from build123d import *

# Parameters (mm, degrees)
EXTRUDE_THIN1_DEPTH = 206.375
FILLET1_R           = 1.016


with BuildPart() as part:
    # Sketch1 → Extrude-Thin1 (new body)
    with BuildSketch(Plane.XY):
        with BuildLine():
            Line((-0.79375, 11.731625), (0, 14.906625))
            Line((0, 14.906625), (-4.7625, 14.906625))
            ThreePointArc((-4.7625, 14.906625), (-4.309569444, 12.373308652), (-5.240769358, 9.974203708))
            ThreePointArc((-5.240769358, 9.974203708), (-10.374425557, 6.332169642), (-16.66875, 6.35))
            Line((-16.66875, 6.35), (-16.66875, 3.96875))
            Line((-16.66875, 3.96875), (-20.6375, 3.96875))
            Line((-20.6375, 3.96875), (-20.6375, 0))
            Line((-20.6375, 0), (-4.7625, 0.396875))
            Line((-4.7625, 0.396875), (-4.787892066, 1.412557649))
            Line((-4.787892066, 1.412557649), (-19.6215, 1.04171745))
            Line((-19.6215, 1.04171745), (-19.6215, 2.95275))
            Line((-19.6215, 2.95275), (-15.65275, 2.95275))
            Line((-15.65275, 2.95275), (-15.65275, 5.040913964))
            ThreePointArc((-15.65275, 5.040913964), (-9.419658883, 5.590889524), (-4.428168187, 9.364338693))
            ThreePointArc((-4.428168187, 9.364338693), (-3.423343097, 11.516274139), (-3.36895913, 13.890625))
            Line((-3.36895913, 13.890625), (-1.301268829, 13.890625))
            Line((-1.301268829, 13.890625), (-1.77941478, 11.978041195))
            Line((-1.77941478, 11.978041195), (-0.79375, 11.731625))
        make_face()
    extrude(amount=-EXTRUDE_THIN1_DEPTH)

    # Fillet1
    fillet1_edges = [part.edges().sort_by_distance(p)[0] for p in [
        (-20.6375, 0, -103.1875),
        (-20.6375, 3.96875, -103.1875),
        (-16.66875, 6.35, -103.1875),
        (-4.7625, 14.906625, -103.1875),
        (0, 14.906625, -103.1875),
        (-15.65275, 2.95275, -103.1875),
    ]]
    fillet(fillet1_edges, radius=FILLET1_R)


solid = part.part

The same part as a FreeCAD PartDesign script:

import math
import FreeCAD as App
import Part
import Sketcher

V = App.Vector
Q = App.Units.Quantity


def edges_at(feature, points):
    """Names of the edges that pass closest to the given points."""
    edges = feature.Shape.Edges
    near = lambda p: min(range(len(edges)), key=lambda i: edges[i].distToShape(Part.Vertex(*p))[0])
    return sorted({f"Edge{near(p) + 1}" for p in points})

doc = App.newDocument("Part")
params = doc.addObject("Spreadsheet::Sheet", "Params")
for row, (alias, value) in enumerate([
    ("sketch1_radius", "0.1875 in"),
    ("sketch1_radius2", "0.40625 in"),
    ("sketch1_length", "0.04 in"),
    ("sketch1_width", "0.1875 in"),
    ("sketch1_width2", "0.15625 in"),
    ("pad1_length", "8.125 in"),
    ("fillet_radius", "0.04 in"),
], start=1):
    params.set(f"A{row}", alias)
    params.set(f"B{row}", "=" + value)
    params.setAlias(f"B{row}", alias)

body = doc.addObject("PartDesign::Body", "Body")

# Sketch on XY plane
sketch1 = body.newObject("Sketcher::SketchObject", "Sketch")
sketch1.AttachmentSupport = (doc.getObject("XY_Plane"), [""])
sketch1.MapMode = "FlatFace"
sketch1.addGeometry(Part.LineSegment(V(-0.79375, 11.731625, 0), V(0, 14.906625, 0)), False)
sketch1.addGeometry(Part.LineSegment(V(0, 14.906625, 0), V(-4.7625, 14.906625, 0)), False)
sketch1.addGeometry(Part.ArcOfCircle(Part.Circle(V(-9.049837, 12.832946, 0), V(0, 0, 1), 4.7625), math.radians(-36.888581), math.radians(25.811906)), False)
sketch1.addGeometry(Part.ArcOfCircle(Part.Circle(V(-13.49375, 16.168145, 0), V(0, 0, 1), 10.31875), math.radians(-107.920213), math.radians(-36.888581)), False)
sketch1.addGeometry(Part.LineSegment(V(-16.66875, 6.35, 0), V(-16.66875, 3.96875, 0)), False)
sketch1.addGeometry(Part.LineSegment(V(-16.66875, 3.96875, 0), V(-20.6375, 3.96875, 0)), False)
sketch1.addGeometry(Part.LineSegment(V(-20.6375, 3.96875, 0), V(-20.6375, 0, 0)), False)
sketch1.addGeometry(Part.LineSegment(V(-20.6375, 0, 0), V(-4.7625, 0.396875, 0)), False)
sketch1.addGeometry(Part.LineSegment(V(-4.7625, 0.396875, 0), V(-4.787892, 1.412558, 0)), False)
sketch1.addGeometry(Part.LineSegment(V(-4.787892, 1.412558, 0), V(-19.6215, 1.041717, 0)), False)
sketch1.addGeometry(Part.LineSegment(V(-19.6215, 1.041717, 0), V(-19.6215, 2.95275, 0)), False)
sketch1.addGeometry(Part.LineSegment(V(-19.6215, 2.95275, 0), V(-15.65275, 2.95275, 0)), False)
sketch1.addGeometry(Part.LineSegment(V(-15.65275, 2.95275, 0), V(-15.65275, 5.040914, 0)), False)
sketch1.addGeometry(Part.ArcOfCircle(Part.Circle(V(-13.49375, 16.168145, 0), V(0, 0, 1), 11.33475), math.radians(-100.980575), math.radians(-36.888581)), False)
sketch1.addGeometry(Part.ArcOfCircle(Part.Circle(V(-9.049837, 12.832946, 0), V(0, 0, 1), 5.7785), math.radians(-36.888581), math.radians(10.546704)), False)
sketch1.addGeometry(Part.LineSegment(V(-3.368959, 13.890625, 0), V(-1.301269, 13.890625, 0)), False)
sketch1.addGeometry(Part.LineSegment(V(-1.301269, 13.890625, 0), V(-1.779415, 11.978041, 0)), False)
sketch1.addGeometry(Part.LineSegment(V(-1.779415, 11.978041, 0), V(-0.79375, 11.731625, 0)), False)
sketch1.addConstraint(Sketcher.Constraint("Coincident", 0, 2, 1, 1))
sketch1.addConstraint(Sketcher.Constraint("Coincident", 1, 2, 2, 2))
sketch1.addConstraint(Sketcher.Constraint("Tangent", 2, 1, 3, 2))
sketch1.addConstraint(Sketcher.Constraint("Coincident", 3, 1, 4, 1))
sketch1.addConstraint(Sketcher.Constraint("Coincident", 4, 2, 5, 1))
sketch1.addConstraint(Sketcher.Constraint("Coincident", 5, 2, 6, 1))
sketch1.addConstraint(Sketcher.Constraint("Coincident", 6, 2, 7, 1))
sketch1.addConstraint(Sketcher.Constraint("Coincident", 7, 2, 8, 1))
sketch1.addConstraint(Sketcher.Constraint("Coincident", 8, 2, 9, 1))
sketch1.addConstraint(Sketcher.Constraint("Coincident", 9, 2, 10, 1))
sketch1.addConstraint(Sketcher.Constraint("Coincident", 10, 2, 11, 1))
sketch1.addConstraint(Sketcher.Constraint("Coincident", 11, 2, 12, 1))
sketch1.addConstraint(Sketcher.Constraint("Coincident", 12, 2, 13, 1))
sketch1.addConstraint(Sketcher.Constraint("Tangent", 13, 2, 14, 1))
sketch1.addConstraint(Sketcher.Constraint("Coincident", 14, 2, 15, 1))
sketch1.addConstraint(Sketcher.Constraint("Coincident", 15, 2, 16, 1))
sketch1.addConstraint(Sketcher.Constraint("Coincident", 16, 2, 17, 1))
sketch1.addConstraint(Sketcher.Constraint("Coincident", 17, 2, 0, 1))
sketch1.addConstraint(Sketcher.Constraint("Horizontal", 1))
sketch1.addConstraint(Sketcher.Constraint("Vertical", 4))
sketch1.addConstraint(Sketcher.Constraint("Horizontal", 5))
sketch1.addConstraint(Sketcher.Constraint("Vertical", 6))
sketch1.addConstraint(Sketcher.Constraint("Vertical", 10))
sketch1.addConstraint(Sketcher.Constraint("Horizontal", 11))
sketch1.addConstraint(Sketcher.Constraint("Vertical", 12))
sketch1.addConstraint(Sketcher.Constraint("Horizontal", 15))
sketch1.addConstraint(Sketcher.Constraint("Coincident", 13, 3, 3, 3))
sketch1.addConstraint(Sketcher.Constraint("Coincident", 14, 3, 2, 3))
sketch1.addConstraint(Sketcher.Constraint("PointOnObject", 0, 2, -2))
sketch1.addConstraint(Sketcher.Constraint("PointOnObject", 6, 2, -1))
sketch1.addConstraint(Sketcher.Constraint("Perpendicular", 7, 8))
sketch1.addConstraint(Sketcher.Constraint("Perpendicular", 8, 9))
sketch1.addConstraint(Sketcher.Constraint("Parallel", 0, 16))
sketch1.addConstraint(Sketcher.Constraint("Perpendicular", 16, 17))
sketch1.addConstraint(Sketcher.Constraint("Vertical", 1, 2, 7, 2))
sketch1.addConstraint(Sketcher.Constraint("Equal", 5, 11))
sketch1.addConstraint(Sketcher.Constraint("Equal", 11, 6))
sketch1.addConstraint(Sketcher.Constraint("Equal", 8, 17))
sketch1.addConstraint(Sketcher.Constraint("Radius", 2, Q("0.1875 in")))
sketch1.addConstraint(Sketcher.Constraint("Radius", 3, Q("0.40625 in")))
sketch1.addConstraint(Sketcher.Constraint("Radius", 14, Q("0.2275 in")))
sketch1.addConstraint(Sketcher.Constraint("Distance", 8, Q("0.04 in")))
sketch1.addConstraint(Sketcher.Constraint("DistanceX", 1, 2, 1, 1, Q("0.1875 in")))
sketch1.addConstraint(Sketcher.Constraint("DistanceX", 5, 2, 5, 1, Q("0.15625 in")))
sketch1.addConstraint(Sketcher.Constraint("DistanceY", 4, 2, 4, 1, Q("0.09375 in")))
sketch1.addConstraint(Sketcher.Constraint("DistanceX", 6, 2, 9, 2, Q("0.04 in")))
sketch1.addConstraint(Sketcher.Constraint("DistanceY", 10, 2, 5, 2, Q("0.04 in")))
sketch1.addConstraint(Sketcher.Constraint("DistanceY", 14, 2, 1, 2, Q("0.04 in")))
sketch1.addConstraint(Sketcher.Constraint("DistanceX", 3, 3, -1, 1, Q("0.53125 in")))
sketch1.addConstraint(Sketcher.Constraint("DistanceX", 3, 1, -1, 1, Q("0.65625 in")))
sketch1.addConstraint(Sketcher.Constraint("DistanceY", -1, 1, 7, 2, Q("0.015625 in")))
sketch1.addConstraint(Sketcher.Constraint("DistanceY", -1, 1, 14, 2, Q("0.546875 in")))
sketch1.addConstraint(Sketcher.Constraint("DistanceX", 17, 2, -1, 1, Q("0.03125 in")))
sketch1.addConstraint(Sketcher.Constraint("DistanceY", 17, 2, 15, 2, Q("0.085 in")))
sketch1.setExpression("Constraints[38]", "Params.sketch1_radius")
sketch1.setExpression("Constraints[39]", "Params.sketch1_radius2")
sketch1.setExpression("Constraints[41]", "Params.sketch1_length")
sketch1.setExpression("Constraints[42]", "Params.sketch1_width")
sketch1.setExpression("Constraints[43]", "Params.sketch1_width2")
pad1 = body.newObject("PartDesign::Pad", "Pad")
pad1.Profile = sketch1
pad1.setExpression("Length", "Params.pad1_length")
pad1.Reversed = True
doc.recompute()

fillet = body.newObject("PartDesign::Fillet", "Fillet")
fillet.Base = (pad1, edges_at(pad1, [
    (-20.637, 0, -103.188),
    (-20.637, 3.969, -103.188),
    (-16.669, 6.35, -103.188),
    (-4.763, 14.907, -103.188),
    (0, 14.907, -103.188),
    (-15.653, 2.953, -103.188),
]))
fillet.setExpression("Radius", "Params.fillet_radius")

doc.recompute()
